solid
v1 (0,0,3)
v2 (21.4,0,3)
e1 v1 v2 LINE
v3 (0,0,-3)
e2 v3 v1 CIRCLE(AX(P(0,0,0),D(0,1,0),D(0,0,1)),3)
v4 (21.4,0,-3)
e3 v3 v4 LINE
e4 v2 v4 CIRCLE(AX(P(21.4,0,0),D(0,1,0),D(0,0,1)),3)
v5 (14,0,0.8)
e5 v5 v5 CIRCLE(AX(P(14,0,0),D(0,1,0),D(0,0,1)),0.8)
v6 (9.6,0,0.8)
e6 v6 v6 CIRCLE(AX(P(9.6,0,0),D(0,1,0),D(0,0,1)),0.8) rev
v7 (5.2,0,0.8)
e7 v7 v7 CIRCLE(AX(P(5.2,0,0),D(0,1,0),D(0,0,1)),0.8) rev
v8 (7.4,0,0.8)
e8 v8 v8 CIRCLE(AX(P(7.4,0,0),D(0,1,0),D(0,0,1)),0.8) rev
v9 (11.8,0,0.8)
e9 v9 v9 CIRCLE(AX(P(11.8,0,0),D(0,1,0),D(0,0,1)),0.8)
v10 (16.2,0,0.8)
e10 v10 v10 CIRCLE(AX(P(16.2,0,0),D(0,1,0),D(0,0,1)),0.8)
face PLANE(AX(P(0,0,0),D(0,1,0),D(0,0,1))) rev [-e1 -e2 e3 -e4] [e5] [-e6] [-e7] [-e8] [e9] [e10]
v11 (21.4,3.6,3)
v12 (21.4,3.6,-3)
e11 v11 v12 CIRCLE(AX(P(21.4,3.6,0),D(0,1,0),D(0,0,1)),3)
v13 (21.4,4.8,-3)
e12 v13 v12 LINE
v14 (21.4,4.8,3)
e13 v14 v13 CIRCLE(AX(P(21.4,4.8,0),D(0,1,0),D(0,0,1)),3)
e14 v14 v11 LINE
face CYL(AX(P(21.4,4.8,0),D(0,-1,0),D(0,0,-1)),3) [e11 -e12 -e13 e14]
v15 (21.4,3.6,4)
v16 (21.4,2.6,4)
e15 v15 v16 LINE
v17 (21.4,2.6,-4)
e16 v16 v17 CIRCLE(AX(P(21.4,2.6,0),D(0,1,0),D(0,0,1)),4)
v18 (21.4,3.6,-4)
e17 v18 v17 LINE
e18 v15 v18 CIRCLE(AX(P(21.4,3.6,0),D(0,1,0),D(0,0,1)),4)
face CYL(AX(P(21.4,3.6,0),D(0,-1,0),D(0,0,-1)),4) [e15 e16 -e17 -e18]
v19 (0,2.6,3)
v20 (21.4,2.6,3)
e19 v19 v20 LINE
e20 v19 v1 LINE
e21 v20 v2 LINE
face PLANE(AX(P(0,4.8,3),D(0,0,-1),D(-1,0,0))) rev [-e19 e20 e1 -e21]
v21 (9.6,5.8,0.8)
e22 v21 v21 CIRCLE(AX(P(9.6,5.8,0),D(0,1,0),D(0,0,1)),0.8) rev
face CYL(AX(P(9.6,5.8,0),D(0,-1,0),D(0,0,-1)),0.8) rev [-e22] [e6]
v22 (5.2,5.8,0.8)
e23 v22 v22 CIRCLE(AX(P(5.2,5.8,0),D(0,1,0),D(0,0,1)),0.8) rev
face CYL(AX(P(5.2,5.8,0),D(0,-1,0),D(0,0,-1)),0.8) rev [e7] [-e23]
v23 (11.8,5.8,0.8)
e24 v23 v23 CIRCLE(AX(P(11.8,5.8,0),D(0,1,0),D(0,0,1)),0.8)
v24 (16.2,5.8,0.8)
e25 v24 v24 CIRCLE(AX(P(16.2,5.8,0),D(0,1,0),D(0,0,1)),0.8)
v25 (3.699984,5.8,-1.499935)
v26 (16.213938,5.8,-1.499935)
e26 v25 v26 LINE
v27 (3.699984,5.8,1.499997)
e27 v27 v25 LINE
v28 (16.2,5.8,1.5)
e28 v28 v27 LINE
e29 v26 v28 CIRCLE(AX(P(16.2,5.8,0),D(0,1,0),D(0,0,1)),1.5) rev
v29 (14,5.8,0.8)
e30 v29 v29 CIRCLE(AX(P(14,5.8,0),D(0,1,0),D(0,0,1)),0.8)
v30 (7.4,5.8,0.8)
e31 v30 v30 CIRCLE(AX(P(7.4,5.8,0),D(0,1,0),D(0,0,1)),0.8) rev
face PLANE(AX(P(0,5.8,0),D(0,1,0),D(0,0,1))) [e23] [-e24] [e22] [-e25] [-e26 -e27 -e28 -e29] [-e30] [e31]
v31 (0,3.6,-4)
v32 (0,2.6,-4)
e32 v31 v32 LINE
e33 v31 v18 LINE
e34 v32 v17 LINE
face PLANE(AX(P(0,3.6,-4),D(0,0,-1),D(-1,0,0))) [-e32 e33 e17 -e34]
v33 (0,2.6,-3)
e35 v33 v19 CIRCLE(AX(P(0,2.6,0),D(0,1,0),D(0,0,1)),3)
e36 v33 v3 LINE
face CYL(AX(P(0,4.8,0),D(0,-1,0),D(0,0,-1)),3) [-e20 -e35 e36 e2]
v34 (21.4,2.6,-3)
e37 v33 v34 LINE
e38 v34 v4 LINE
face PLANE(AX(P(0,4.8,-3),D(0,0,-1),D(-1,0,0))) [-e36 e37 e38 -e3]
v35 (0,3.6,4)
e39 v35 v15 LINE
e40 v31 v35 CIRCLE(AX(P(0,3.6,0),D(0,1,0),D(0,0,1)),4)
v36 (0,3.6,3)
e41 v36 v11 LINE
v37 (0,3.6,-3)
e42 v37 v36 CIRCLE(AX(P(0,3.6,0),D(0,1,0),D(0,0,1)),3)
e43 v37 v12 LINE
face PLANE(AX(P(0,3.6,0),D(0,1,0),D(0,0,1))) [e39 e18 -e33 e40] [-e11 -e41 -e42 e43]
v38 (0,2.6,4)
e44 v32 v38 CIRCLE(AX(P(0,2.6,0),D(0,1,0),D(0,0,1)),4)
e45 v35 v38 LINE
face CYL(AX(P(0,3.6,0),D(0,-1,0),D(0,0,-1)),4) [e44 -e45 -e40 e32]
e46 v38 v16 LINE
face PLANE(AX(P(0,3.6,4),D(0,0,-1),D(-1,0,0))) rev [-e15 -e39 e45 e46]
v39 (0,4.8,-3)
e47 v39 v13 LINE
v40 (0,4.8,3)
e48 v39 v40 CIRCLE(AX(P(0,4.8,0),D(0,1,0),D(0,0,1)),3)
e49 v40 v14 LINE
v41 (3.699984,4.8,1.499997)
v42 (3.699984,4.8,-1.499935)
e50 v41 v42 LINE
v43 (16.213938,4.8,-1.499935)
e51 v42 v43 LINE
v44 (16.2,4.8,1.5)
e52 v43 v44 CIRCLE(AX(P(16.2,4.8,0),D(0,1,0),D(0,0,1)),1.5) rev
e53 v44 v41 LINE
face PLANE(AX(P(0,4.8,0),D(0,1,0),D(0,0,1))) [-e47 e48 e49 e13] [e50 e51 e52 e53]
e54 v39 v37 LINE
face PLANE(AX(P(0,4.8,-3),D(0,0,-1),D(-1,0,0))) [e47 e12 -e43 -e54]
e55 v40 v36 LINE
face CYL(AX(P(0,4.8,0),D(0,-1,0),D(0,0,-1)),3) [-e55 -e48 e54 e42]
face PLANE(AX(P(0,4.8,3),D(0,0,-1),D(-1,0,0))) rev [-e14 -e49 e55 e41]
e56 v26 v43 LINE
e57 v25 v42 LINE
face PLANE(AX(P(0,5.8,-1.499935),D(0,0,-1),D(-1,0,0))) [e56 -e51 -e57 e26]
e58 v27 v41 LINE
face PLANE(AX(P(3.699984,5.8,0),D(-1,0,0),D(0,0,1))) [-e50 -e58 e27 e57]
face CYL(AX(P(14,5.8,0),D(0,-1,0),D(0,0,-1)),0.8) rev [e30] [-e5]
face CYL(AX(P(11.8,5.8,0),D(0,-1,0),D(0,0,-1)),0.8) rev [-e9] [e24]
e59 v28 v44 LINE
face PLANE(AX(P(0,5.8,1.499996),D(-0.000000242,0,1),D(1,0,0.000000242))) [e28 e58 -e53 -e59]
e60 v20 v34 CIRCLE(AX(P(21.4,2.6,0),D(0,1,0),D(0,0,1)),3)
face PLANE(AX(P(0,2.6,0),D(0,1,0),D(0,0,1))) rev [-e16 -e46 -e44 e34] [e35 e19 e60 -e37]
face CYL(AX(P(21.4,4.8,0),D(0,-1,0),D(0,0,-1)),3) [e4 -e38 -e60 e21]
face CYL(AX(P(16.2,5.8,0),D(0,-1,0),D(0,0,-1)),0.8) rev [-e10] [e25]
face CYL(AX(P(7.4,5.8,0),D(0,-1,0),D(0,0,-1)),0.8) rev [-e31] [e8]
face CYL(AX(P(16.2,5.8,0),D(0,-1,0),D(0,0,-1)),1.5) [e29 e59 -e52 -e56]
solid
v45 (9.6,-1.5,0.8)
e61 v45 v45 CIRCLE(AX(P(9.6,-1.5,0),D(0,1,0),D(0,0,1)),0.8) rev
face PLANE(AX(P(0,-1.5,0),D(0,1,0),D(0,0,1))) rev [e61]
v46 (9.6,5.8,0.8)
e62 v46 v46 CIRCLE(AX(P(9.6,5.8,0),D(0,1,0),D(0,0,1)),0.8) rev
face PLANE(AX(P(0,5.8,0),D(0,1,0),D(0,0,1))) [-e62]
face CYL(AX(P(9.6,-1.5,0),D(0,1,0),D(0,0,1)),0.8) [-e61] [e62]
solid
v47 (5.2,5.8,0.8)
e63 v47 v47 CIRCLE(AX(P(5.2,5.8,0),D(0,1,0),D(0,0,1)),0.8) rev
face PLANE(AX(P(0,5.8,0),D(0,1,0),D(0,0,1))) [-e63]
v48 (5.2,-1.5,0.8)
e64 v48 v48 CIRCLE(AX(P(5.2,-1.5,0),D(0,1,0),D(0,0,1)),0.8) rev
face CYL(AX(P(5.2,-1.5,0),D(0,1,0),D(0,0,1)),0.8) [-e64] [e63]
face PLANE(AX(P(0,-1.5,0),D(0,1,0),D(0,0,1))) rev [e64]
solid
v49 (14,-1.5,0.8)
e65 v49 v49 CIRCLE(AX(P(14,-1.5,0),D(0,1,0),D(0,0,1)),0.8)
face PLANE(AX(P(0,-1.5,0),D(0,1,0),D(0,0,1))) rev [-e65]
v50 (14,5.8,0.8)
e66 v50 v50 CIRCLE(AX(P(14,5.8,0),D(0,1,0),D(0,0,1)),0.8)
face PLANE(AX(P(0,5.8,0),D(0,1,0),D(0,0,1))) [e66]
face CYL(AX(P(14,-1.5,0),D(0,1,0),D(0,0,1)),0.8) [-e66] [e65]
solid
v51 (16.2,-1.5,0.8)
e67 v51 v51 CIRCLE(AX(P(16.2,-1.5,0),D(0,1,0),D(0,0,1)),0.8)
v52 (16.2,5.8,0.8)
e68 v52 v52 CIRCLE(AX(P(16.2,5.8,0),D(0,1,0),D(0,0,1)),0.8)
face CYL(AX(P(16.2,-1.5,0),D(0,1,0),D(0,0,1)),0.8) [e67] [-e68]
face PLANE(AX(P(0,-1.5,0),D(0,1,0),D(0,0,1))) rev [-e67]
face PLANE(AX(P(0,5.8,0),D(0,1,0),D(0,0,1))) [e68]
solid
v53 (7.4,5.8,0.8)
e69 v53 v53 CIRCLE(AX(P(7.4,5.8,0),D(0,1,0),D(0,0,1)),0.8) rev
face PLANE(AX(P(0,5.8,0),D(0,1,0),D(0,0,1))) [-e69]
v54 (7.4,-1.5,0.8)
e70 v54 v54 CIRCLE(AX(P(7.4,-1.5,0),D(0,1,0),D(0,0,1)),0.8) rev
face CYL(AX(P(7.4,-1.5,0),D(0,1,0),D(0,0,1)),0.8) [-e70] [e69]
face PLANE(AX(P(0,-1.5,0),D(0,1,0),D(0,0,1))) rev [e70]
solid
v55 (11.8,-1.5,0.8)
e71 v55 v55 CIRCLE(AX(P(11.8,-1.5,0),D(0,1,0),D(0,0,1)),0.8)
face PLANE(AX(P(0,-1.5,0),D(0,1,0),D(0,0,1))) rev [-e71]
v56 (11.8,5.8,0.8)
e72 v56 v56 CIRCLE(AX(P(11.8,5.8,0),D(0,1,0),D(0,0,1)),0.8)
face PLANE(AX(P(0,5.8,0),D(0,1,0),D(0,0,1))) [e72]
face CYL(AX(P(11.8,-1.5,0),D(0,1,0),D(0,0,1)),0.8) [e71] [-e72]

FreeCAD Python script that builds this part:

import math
import FreeCAD as App
import Part
import Sketcher

V = App.Vector
Q = App.Units.Quantity

doc = App.newDocument("Part")
body = doc.addObject("PartDesign::Body", "Body")

# Sketch on XZ plane
sketch1 = doc.addObject("Sketcher::SketchObject", "Sketch")
body.addObject(sketch1)
sketch1.AttachmentSupport = (doc.XZ_Plane, [""])
sketch1.MapMode = "FlatFace"
sketch1.addGeometry(Part.LineSegment(V(0, 3, 0), V(21.4, 3, 0)), False)
sketch1.addGeometry(Part.ArcOfCircle(Part.Circle(V(21.4, 0, 0), V(0, 0, 1), 3), math.radians(-90), math.radians(90)), False)
sketch1.addGeometry(Part.LineSegment(V(21.4, -3, 0), V(0, -3, 0)), False)
sketch1.addGeometry(Part.ArcOfCircle(Part.Circle(V(0, 0, 0), V(0, 0, 1), 3), math.radians(90), math.radians(270)), False)
sketch1.addGeometry(Part.LineSegment(V(3.699984, 1.499997, 0), V(3.699984, -1.499935, 0)), False)
sketch1.addGeometry(Part.LineSegment(V(3.699984, -1.499935, 0), V(16.213938, -1.499935, 0)), False)
sketch1.addGeometry(Part.ArcOfCircle(Part.Circle(V(16.2, 0, 0), V(0, 0, 1), 1.5), math.radians(-89.467595), math.radians(90.000014)), False)
sketch1.addGeometry(Part.LineSegment(V(16.2, 1.5, 0), V(3.699984, 1.499997, 0)), False)
sketch1.addConstraint(Sketcher.Constraint("Coincident", 0, 2, 1, 2))
sketch1.addConstraint(Sketcher.Constraint("Coincident", 1, 1, 2, 1))
sketch1.addConstraint(Sketcher.Constraint("Coincident", 2, 2, 3, 2))
sketch1.addConstraint(Sketcher.Constraint("Coincident", 3, 1, 0, 1))
sketch1.addConstraint(Sketcher.Constraint("Coincident", 4, 2, 5, 1))
sketch1.addConstraint(Sketcher.Constraint("Coincident", 5, 2, 6, 1))
sketch1.addConstraint(Sketcher.Constraint("Coincident", 6, 2, 7, 1))
sketch1.addConstraint(Sketcher.Constraint("Coincident", 7, 2, 4, 1))
sketch1.addConstraint(Sketcher.Constraint("Horizontal", 0))
sketch1.addConstraint(Sketcher.Constraint("Horizontal", 2))
sketch1.addConstraint(Sketcher.Constraint("Vertical", 4))
sketch1.addConstraint(Sketcher.Constraint("Horizontal", 5))
sketch1.addConstraint(Sketcher.Constraint("Coincident", 3, 3, -1, 1))
sketch1.addConstraint(Sketcher.Constraint("PointOnObject", 6, 3, -1))
sketch1.addConstraint(Sketcher.Constraint("PointOnObject", 2, 2, -2))
sketch1.addConstraint(Sketcher.Constraint("PointOnObject", 3, 1, -2))
sketch1.addConstraint(Sketcher.Constraint("Radius", 1, Q("3 mm")))
sketch1.addConstraint(Sketcher.Constraint("Radius", 6, Q("1.5 mm")))
sketch1.addConstraint(Sketcher.Constraint("DistanceX", 0, 1, 0, 2, Q("21.4 mm")))
sketch1.addConstraint(Sketcher.Constraint("DistanceX", 2, 2, 2, 1, Q("21.4 mm")))
sketch1.addConstraint(Sketcher.Constraint("DistanceX", -1, 1, 1, 3, Q("21.4 mm")))
sketch1.addConstraint(Sketcher.Constraint("DistanceX", -1, 1, 6, 3, Q("16.2 mm")))
sketch1.addConstraint(Sketcher.Constraint("DistanceX", -1, 1, 6, 2, Q("16.2 mm")))
sketch1.addConstraint(Sketcher.Constraint("DistanceX", 5, 1, 5, 2, Q("12.513954 mm")))
sketch1.addConstraint(Sketcher.Constraint("DistanceY", 4, 2, 4, 1, Q("2.999932 mm")))
sketch1.addConstraint(Sketcher.Constraint("DistanceX", -1, 1, 5, 2, Q("16.213938 mm")))
pad1 = doc.addObject("PartDesign::Pad", "Pad")
body.addObject(pad1)
pad1.Profile = sketch1
pad1.Length = 4.8
pad1.Reversed = True

# Sketch on XZ plane
sketch2 = doc.addObject("Sketcher::SketchObject", "Sketch001")
body.addObject(sketch2)
sketch2.AttachmentSupport = (doc.XZ_Plane, [""])
sketch2.MapMode = "FlatFace"
sketch2.addGeometry(Part.ArcOfCircle(Part.Circle(V(16.2, 0, 0), V(0, 0, 1), 1.5), math.radians(-89.467595), math.radians(90.000014)), False)
sketch2.addGeometry(Part.LineSegment(V(16.213938, -1.499935, 0), V(3.699984, -1.499935, 0)), False)
sketch2.addGeometry(Part.LineSegment(V(3.699984, -1.499935, 0), V(3.699984, 1.499997, 0)), False)
sketch2.addGeometry(Part.LineSegment(V(3.699984, 1.499997, 0), V(16.2, 1.5, 0)), False)
sketch2.addGeometry(Part.Circle(V(16.2, 0, 0), V(0, 0, 1), 0.8), False)
sketch2.addGeometry(Part.Circle(V(14, 0, 0), V(0, 0, 1), 0.8), False)
sketch2.addGeometry(Part.Circle(V(11.8, 0, 0), V(0, 0, 1), 0.8), False)
sketch2.addGeometry(Part.Circle(V(9.6, 0, 0), V(0, 0, 1), 0.8), False)
sketch2.addGeometry(Part.Circle(V(7.4, 0, 0), V(0, 0, 1), 0.8), False)
sketch2.addGeometry(Part.Circle(V(5.2, 0, 0), V(0, 0, 1), 0.8), False)
sketch2.addConstraint(Sketcher.Constraint("Coincident", 0, 1, 1, 1))
sketch2.addConstraint(Sketcher.Constraint("Coincident", 1, 2, 2, 1))
sketch2.addConstraint(Sketcher.Constraint("Coincident", 2, 2, 3, 1))
sketch2.addConstraint(Sketcher.Constraint("Coincident", 3, 2, 0, 2))
sketch2.addConstraint(Sketcher.Constraint("Horizontal", 1))
sketch2.addConstraint(Sketcher.Constraint("Vertical", 2))
sketch2.addConstraint(Sketcher.Constraint("Coincident", 4, 3, 0, 3))
sketch2.addConstraint(Sketcher.Constraint("PointOnObject", 0, 3, -1))
sketch2.addConstraint(Sketcher.Constraint("PointOnObject", 5, 3, -1))
sketch2.addConstraint(Sketcher.Constraint("PointOnObject", 6, 3, -1))
sketch2.addConstraint(Sketcher.Constraint("PointOnObject", 7, 3, -1))
sketch2.addConstraint(Sketcher.Constraint("PointOnObject", 8, 3, -1))
sketch2.addConstraint(Sketcher.Constraint("PointOnObject", 9, 3, -1))
sketch2.addConstraint(Sketcher.Constraint("Diameter", 4, Q("1.6 mm")))
sketch2.addConstraint(Sketcher.Constraint("Diameter", 5, Q("1.6 mm")))
sketch2.addConstraint(Sketcher.Constraint("Diameter", 6, Q("1.6 mm")))
sketch2.addConstraint(Sketcher.Constraint("Diameter", 7, Q("1.6 mm")))
sketch2.addConstraint(Sketcher.Constraint("Diameter", 8, Q("1.6 mm")))
sketch2.addConstraint(Sketcher.Constraint("Diameter", 9, Q("1.6 mm")))
sketch2.addConstraint(Sketcher.Constraint("Radius", 0, Q("1.5 mm")))
sketch2.addConstraint(Sketcher.Constraint("DistanceX", -1, 1, 5, 3, Q("14 mm")))
sketch2.addConstraint(Sketcher.Constraint("DistanceX", 9, 3, 0, 3, Q("11 mm")))
sketch2.addConstraint(Sketcher.Constraint("DistanceX", -1, 1, 0, 3, Q("16.2 mm")))
sketch2.addConstraint(Sketcher.Constraint("DistanceX", -1, 1, 6, 3, Q("11.8 mm")))
sketch2.addConstraint(Sketcher.Constraint("DistanceX", -1, 1, 7, 3, Q("9.6 mm")))
sketch2.addConstraint(Sketcher.Constraint("DistanceX", -1, 1, 8, 3, Q("7.4 mm")))
sketch2.addConstraint(Sketcher.Constraint("DistanceX", -1, 1, 3, 2, Q("16.2 mm")))
sketch2.addConstraint(Sketcher.Constraint("DistanceX", 1, 2, 1, 1, Q("12.513954 mm")))
sketch2.addConstraint(Sketcher.Constraint("DistanceY", 2, 1, 2, 2, Q("2.999932 mm")))
sketch2.addConstraint(Sketcher.Constraint("DistanceX", -1, 1, 0, 1, Q("16.213938 mm")))
pad2 = doc.addObject("PartDesign::Pad", "Pad001")
body.addObject(pad2)
pad2.Profile = sketch2
pad2.Length = 5.8
pad2.Reversed = True

# Sketch on XZ plane
sketch3 = doc.addObject("Sketcher::SketchObject", "Sketch002")
body.addObject(sketch3)
sketch3.AttachmentSupport = (doc.XZ_Plane, [""])
sketch3.MapMode = "FlatFace"
sketch3.AttachmentOffset = App.Placement(V(0, 0, -2.6), App.Rotation())
sketch3.addGeometry(Part.LineSegment(V(0, 4, 0), V(21.4, 4, 0)), False)
sketch3.addGeometry(Part.ArcOfCircle(Part.Circle(V(21.4, 0, 0), V(0, 0, 1), 4), math.radians(-90), math.radians(90)), False)
sketch3.addGeometry(Part.LineSegment(V(21.4, -4, 0), V(0, -4, 0)), False)
sketch3.addGeometry(Part.ArcOfCircle(Part.Circle(V(0, 0, 0), V(0, 0, 1), 4), math.radians(90), math.radians(270)), False)
sketch3.addGeometry(Part.ArcOfCircle(Part.Circle(V(21.4, 0, 0), V(0, 0, 1), 3), math.radians(-90), math.radians(90)), False)
sketch3.addGeometry(Part.LineSegment(V(21.4, 3, 0), V(0, 3, 0)), False)
sketch3.addGeometry(Part.ArcOfCircle(Part.Circle(V(0, 0, 0), V(0, 0, 1), 3), math.radians(90), math.radians(270)), False)
sketch3.addGeometry(Part.LineSegment(V(0, -3, 0), V(21.4, -3, 0)), False)
sketch3.addConstraint(Sketcher.Constraint("Tangent", 0, 2, 1, 2))
sketch3.addConstraint(Sketcher.Constraint("Tangent", 1, 1, 2, 1))
sketch3.addConstraint(Sketcher.Constraint("Tangent", 2, 2, 3, 2))
sketch3.addConstraint(Sketcher.Constraint("Tangent", 3, 1, 0, 1))
sketch3.addConstraint(Sketcher.Constraint("Tangent", 4, 2, 5, 1))
sketch3.addConstraint(Sketcher.Constraint("Tangent", 5, 2, 6, 1))
sketch3.addConstraint(Sketcher.Constraint("Tangent", 6, 2, 7, 1))
sketch3.addConstraint(Sketcher.Constraint("Tangent", 7, 2, 4, 1))
sketch3.addConstraint(Sketcher.Constraint("Horizontal", 0))
sketch3.addConstraint(Sketcher.Constraint("Horizontal", 2))
sketch3.addConstraint(Sketcher.Constraint("Horizontal", 5))
sketch3.addConstraint(Sketcher.Constraint("Horizontal", 7))
sketch3.addConstraint(Sketcher.Constraint("Coincident", 3, 3, -1, 1))
sketch3.addConstraint(Sketcher.Constraint("Coincident", 6, 3, -1, 1))
sketch3.addConstraint(Sketcher.Constraint("Vertical", 4, 3, 0, 2))
sketch3.addConstraint(Sketcher.Constraint("Radius", 1, Q("4 mm")))
sketch3.addConstraint(Sketcher.Constraint("Radius", 4, Q("3 mm")))
sketch3.addConstraint(Sketcher.Constraint("DistanceX", 0, 1, 0, 2, Q("21.4 mm")))
pad3 = doc.addObject("PartDesign::Pad", "Pad002")
body.addObject(pad3)
pad3.Profile = sketch3
pad3.Length = 1
pad3.Reversed = True
body2 = doc.addObject("PartDesign::Body", "Body001")

# Sketch on XZ plane
sketch4 = doc.addObject("Sketcher::SketchObject", "Sketch003")
body2.addObject(sketch4)
sketch4.AttachmentSupport = (doc.getObject("XZ_Plane001"), [""])
sketch4.MapMode = "FlatFace"
sketch4.addGeometry(Part.Circle(V(5.2, 0, 0), V(0, 0, 1), 0.8), False)
sketch4.addConstraint(Sketcher.Constraint("PointOnObject", 0, 3, -1))
sketch4.addConstraint(Sketcher.Constraint("Diameter", 0, Q("1.6 mm")))
sketch4.addConstraint(Sketcher.Constraint("DistanceX", -1, 1, 0, 3, Q("5.2 mm")))
pad4 = doc.addObject("PartDesign::Pad", "Pad003")
body2.addObject(pad4)
pad4.Profile = sketch4
pad4.Type = "TwoLengths"
pad4.Length = 5.8
pad4.Length2 = 1.5
pad4.Reversed = True
body3 = doc.addObject("PartDesign::Body", "Body002")

# Sketch on XZ plane
sketch5 = doc.addObject("Sketcher::SketchObject", "Sketch004")
body3.addObject(sketch5)
sketch5.AttachmentSupport = (doc.getObject("XZ_Plane002"), [""])
sketch5.MapMode = "FlatFace"
sketch5.addGeometry(Part.Circle(V(7.4, 0, 0), V(0, 0, 1), 0.8), False)
sketch5.addConstraint(Sketcher.Constraint("PointOnObject", 0, 3, -1))
sketch5.addConstraint(Sketcher.Constraint("Diameter", 0, Q("1.6 mm")))
sketch5.addConstraint(Sketcher.Constraint("DistanceX", -1, 1, 0, 3, Q("7.4 mm")))
pad5 = doc.addObject("PartDesign::Pad", "Pad004")
body3.addObject(pad5)
pad5.Profile = sketch5
pad5.Type = "TwoLengths"
pad5.Length = 5.8
pad5.Length2 = 1.5
pad5.Reversed = True
body4 = doc.addObject("PartDesign::Body", "Body003")

# Sketch on XZ plane
sketch6 = doc.addObject("Sketcher::SketchObject", "Sketch005")
body4.addObject(sketch6)
sketch6.AttachmentSupport = (doc.getObject("XZ_Plane003"), [""])
sketch6.MapMode = "FlatFace"
sketch6.addGeometry(Part.Circle(V(9.6, 0, 0), V(0, 0, 1), 0.8), False)
sketch6.addConstraint(Sketcher.Constraint("PointOnObject", 0, 3, -1))
sketch6.addConstraint(Sketcher.Constraint("Diameter", 0, Q("1.6 mm")))
sketch6.addConstraint(Sketcher.Constraint("DistanceX", -1, 1, 0, 3, Q("9.6 mm")))
pad6 = doc.addObject("PartDesign::Pad", "Pad005")
body4.addObject(pad6)
pad6.Profile = sketch6
pad6.Type = "TwoLengths"
pad6.Length = 5.8
pad6.Length2 = 1.5
pad6.Reversed = True
body5 = doc.addObject("PartDesign::Body", "Body004")

# Sketch on XZ plane
sketch7 = doc.addObject("Sketcher::SketchObject", "Sketch006")
body5.addObject(sketch7)
sketch7.AttachmentSupport = (doc.getObject("XZ_Plane004"), [""])
sketch7.MapMode = "FlatFace"
sketch7.addGeometry(Part.Circle(V(11.8, 0, 0), V(0, 0, 1), 0.8), False)
sketch7.addConstraint(Sketcher.Constraint("PointOnObject", 0, 3, -1))
sketch7.addConstraint(Sketcher.Constraint("Diameter", 0, Q("1.6 mm")))
sketch7.addConstraint(Sketcher.Constraint("DistanceX", -1, 1, 0, 3, Q("11.8 mm")))
pad7 = doc.addObject("PartDesign::Pad", "Pad006")
body5.addObject(pad7)
pad7.Profile = sketch7
pad7.Type = "TwoLengths"
pad7.Length = 5.8
pad7.Length2 = 1.5
pad7.Reversed = True
body6 = doc.addObject("PartDesign::Body", "Body005")

# Sketch on XZ plane
sketch8 = doc.addObject("Sketcher::SketchObject", "Sketch007")
body6.addObject(sketch8)
sketch8.AttachmentSupport = (doc.getObject("XZ_Plane005"), [""])
sketch8.MapMode = "FlatFace"
sketch8.addGeometry(Part.Circle(V(14, 0, 0), V(0, 0, 1), 0.8), False)
sketch8.addConstraint(Sketcher.Constraint("PointOnObject", 0, 3, -1))
sketch8.addConstraint(Sketcher.Constraint("Diameter", 0, Q("1.6 mm")))
sketch8.addConstraint(Sketcher.Constraint("DistanceX", -1, 1, 0, 3, Q("14 mm")))
pad8 = doc.addObject("PartDesign::Pad", "Pad007")
body6.addObject(pad8)
pad8.Profile = sketch8
pad8.Type = "TwoLengths"
pad8.Length = 5.8
pad8.Length2 = 1.5
pad8.Reversed = True
body7 = doc.addObject("PartDesign::Body", "Body006")

# Sketch on XZ plane
sketch9 = doc.addObject("Sketcher::SketchObject", "Sketch008")
body7.addObject(sketch9)
sketch9.AttachmentSupport = (doc.getObject("XZ_Plane006"), [""])
sketch9.MapMode = "FlatFace"
sketch9.addGeometry(Part.Circle(V(16.2, 0, 0), V(0, 0, 1), 0.8), False)
sketch9.addConstraint(Sketcher.Constraint("PointOnObject", 0, 3, -1))
sketch9.addConstraint(Sketcher.Constraint("Diameter", 0, Q("1.6 mm")))
sketch9.addConstraint(Sketcher.Constraint("DistanceX", -1, 1, 0, 3, Q("16.2 mm")))
pad9 = doc.addObject("PartDesign::Pad", "Pad008")
body7.addObject(pad9)
pad9.Profile = sketch9
pad9.Type = "TwoLengths"
pad9.Length = 5.8
pad9.Length2 = 1.5
pad9.Reversed = True

doc.recompute()
